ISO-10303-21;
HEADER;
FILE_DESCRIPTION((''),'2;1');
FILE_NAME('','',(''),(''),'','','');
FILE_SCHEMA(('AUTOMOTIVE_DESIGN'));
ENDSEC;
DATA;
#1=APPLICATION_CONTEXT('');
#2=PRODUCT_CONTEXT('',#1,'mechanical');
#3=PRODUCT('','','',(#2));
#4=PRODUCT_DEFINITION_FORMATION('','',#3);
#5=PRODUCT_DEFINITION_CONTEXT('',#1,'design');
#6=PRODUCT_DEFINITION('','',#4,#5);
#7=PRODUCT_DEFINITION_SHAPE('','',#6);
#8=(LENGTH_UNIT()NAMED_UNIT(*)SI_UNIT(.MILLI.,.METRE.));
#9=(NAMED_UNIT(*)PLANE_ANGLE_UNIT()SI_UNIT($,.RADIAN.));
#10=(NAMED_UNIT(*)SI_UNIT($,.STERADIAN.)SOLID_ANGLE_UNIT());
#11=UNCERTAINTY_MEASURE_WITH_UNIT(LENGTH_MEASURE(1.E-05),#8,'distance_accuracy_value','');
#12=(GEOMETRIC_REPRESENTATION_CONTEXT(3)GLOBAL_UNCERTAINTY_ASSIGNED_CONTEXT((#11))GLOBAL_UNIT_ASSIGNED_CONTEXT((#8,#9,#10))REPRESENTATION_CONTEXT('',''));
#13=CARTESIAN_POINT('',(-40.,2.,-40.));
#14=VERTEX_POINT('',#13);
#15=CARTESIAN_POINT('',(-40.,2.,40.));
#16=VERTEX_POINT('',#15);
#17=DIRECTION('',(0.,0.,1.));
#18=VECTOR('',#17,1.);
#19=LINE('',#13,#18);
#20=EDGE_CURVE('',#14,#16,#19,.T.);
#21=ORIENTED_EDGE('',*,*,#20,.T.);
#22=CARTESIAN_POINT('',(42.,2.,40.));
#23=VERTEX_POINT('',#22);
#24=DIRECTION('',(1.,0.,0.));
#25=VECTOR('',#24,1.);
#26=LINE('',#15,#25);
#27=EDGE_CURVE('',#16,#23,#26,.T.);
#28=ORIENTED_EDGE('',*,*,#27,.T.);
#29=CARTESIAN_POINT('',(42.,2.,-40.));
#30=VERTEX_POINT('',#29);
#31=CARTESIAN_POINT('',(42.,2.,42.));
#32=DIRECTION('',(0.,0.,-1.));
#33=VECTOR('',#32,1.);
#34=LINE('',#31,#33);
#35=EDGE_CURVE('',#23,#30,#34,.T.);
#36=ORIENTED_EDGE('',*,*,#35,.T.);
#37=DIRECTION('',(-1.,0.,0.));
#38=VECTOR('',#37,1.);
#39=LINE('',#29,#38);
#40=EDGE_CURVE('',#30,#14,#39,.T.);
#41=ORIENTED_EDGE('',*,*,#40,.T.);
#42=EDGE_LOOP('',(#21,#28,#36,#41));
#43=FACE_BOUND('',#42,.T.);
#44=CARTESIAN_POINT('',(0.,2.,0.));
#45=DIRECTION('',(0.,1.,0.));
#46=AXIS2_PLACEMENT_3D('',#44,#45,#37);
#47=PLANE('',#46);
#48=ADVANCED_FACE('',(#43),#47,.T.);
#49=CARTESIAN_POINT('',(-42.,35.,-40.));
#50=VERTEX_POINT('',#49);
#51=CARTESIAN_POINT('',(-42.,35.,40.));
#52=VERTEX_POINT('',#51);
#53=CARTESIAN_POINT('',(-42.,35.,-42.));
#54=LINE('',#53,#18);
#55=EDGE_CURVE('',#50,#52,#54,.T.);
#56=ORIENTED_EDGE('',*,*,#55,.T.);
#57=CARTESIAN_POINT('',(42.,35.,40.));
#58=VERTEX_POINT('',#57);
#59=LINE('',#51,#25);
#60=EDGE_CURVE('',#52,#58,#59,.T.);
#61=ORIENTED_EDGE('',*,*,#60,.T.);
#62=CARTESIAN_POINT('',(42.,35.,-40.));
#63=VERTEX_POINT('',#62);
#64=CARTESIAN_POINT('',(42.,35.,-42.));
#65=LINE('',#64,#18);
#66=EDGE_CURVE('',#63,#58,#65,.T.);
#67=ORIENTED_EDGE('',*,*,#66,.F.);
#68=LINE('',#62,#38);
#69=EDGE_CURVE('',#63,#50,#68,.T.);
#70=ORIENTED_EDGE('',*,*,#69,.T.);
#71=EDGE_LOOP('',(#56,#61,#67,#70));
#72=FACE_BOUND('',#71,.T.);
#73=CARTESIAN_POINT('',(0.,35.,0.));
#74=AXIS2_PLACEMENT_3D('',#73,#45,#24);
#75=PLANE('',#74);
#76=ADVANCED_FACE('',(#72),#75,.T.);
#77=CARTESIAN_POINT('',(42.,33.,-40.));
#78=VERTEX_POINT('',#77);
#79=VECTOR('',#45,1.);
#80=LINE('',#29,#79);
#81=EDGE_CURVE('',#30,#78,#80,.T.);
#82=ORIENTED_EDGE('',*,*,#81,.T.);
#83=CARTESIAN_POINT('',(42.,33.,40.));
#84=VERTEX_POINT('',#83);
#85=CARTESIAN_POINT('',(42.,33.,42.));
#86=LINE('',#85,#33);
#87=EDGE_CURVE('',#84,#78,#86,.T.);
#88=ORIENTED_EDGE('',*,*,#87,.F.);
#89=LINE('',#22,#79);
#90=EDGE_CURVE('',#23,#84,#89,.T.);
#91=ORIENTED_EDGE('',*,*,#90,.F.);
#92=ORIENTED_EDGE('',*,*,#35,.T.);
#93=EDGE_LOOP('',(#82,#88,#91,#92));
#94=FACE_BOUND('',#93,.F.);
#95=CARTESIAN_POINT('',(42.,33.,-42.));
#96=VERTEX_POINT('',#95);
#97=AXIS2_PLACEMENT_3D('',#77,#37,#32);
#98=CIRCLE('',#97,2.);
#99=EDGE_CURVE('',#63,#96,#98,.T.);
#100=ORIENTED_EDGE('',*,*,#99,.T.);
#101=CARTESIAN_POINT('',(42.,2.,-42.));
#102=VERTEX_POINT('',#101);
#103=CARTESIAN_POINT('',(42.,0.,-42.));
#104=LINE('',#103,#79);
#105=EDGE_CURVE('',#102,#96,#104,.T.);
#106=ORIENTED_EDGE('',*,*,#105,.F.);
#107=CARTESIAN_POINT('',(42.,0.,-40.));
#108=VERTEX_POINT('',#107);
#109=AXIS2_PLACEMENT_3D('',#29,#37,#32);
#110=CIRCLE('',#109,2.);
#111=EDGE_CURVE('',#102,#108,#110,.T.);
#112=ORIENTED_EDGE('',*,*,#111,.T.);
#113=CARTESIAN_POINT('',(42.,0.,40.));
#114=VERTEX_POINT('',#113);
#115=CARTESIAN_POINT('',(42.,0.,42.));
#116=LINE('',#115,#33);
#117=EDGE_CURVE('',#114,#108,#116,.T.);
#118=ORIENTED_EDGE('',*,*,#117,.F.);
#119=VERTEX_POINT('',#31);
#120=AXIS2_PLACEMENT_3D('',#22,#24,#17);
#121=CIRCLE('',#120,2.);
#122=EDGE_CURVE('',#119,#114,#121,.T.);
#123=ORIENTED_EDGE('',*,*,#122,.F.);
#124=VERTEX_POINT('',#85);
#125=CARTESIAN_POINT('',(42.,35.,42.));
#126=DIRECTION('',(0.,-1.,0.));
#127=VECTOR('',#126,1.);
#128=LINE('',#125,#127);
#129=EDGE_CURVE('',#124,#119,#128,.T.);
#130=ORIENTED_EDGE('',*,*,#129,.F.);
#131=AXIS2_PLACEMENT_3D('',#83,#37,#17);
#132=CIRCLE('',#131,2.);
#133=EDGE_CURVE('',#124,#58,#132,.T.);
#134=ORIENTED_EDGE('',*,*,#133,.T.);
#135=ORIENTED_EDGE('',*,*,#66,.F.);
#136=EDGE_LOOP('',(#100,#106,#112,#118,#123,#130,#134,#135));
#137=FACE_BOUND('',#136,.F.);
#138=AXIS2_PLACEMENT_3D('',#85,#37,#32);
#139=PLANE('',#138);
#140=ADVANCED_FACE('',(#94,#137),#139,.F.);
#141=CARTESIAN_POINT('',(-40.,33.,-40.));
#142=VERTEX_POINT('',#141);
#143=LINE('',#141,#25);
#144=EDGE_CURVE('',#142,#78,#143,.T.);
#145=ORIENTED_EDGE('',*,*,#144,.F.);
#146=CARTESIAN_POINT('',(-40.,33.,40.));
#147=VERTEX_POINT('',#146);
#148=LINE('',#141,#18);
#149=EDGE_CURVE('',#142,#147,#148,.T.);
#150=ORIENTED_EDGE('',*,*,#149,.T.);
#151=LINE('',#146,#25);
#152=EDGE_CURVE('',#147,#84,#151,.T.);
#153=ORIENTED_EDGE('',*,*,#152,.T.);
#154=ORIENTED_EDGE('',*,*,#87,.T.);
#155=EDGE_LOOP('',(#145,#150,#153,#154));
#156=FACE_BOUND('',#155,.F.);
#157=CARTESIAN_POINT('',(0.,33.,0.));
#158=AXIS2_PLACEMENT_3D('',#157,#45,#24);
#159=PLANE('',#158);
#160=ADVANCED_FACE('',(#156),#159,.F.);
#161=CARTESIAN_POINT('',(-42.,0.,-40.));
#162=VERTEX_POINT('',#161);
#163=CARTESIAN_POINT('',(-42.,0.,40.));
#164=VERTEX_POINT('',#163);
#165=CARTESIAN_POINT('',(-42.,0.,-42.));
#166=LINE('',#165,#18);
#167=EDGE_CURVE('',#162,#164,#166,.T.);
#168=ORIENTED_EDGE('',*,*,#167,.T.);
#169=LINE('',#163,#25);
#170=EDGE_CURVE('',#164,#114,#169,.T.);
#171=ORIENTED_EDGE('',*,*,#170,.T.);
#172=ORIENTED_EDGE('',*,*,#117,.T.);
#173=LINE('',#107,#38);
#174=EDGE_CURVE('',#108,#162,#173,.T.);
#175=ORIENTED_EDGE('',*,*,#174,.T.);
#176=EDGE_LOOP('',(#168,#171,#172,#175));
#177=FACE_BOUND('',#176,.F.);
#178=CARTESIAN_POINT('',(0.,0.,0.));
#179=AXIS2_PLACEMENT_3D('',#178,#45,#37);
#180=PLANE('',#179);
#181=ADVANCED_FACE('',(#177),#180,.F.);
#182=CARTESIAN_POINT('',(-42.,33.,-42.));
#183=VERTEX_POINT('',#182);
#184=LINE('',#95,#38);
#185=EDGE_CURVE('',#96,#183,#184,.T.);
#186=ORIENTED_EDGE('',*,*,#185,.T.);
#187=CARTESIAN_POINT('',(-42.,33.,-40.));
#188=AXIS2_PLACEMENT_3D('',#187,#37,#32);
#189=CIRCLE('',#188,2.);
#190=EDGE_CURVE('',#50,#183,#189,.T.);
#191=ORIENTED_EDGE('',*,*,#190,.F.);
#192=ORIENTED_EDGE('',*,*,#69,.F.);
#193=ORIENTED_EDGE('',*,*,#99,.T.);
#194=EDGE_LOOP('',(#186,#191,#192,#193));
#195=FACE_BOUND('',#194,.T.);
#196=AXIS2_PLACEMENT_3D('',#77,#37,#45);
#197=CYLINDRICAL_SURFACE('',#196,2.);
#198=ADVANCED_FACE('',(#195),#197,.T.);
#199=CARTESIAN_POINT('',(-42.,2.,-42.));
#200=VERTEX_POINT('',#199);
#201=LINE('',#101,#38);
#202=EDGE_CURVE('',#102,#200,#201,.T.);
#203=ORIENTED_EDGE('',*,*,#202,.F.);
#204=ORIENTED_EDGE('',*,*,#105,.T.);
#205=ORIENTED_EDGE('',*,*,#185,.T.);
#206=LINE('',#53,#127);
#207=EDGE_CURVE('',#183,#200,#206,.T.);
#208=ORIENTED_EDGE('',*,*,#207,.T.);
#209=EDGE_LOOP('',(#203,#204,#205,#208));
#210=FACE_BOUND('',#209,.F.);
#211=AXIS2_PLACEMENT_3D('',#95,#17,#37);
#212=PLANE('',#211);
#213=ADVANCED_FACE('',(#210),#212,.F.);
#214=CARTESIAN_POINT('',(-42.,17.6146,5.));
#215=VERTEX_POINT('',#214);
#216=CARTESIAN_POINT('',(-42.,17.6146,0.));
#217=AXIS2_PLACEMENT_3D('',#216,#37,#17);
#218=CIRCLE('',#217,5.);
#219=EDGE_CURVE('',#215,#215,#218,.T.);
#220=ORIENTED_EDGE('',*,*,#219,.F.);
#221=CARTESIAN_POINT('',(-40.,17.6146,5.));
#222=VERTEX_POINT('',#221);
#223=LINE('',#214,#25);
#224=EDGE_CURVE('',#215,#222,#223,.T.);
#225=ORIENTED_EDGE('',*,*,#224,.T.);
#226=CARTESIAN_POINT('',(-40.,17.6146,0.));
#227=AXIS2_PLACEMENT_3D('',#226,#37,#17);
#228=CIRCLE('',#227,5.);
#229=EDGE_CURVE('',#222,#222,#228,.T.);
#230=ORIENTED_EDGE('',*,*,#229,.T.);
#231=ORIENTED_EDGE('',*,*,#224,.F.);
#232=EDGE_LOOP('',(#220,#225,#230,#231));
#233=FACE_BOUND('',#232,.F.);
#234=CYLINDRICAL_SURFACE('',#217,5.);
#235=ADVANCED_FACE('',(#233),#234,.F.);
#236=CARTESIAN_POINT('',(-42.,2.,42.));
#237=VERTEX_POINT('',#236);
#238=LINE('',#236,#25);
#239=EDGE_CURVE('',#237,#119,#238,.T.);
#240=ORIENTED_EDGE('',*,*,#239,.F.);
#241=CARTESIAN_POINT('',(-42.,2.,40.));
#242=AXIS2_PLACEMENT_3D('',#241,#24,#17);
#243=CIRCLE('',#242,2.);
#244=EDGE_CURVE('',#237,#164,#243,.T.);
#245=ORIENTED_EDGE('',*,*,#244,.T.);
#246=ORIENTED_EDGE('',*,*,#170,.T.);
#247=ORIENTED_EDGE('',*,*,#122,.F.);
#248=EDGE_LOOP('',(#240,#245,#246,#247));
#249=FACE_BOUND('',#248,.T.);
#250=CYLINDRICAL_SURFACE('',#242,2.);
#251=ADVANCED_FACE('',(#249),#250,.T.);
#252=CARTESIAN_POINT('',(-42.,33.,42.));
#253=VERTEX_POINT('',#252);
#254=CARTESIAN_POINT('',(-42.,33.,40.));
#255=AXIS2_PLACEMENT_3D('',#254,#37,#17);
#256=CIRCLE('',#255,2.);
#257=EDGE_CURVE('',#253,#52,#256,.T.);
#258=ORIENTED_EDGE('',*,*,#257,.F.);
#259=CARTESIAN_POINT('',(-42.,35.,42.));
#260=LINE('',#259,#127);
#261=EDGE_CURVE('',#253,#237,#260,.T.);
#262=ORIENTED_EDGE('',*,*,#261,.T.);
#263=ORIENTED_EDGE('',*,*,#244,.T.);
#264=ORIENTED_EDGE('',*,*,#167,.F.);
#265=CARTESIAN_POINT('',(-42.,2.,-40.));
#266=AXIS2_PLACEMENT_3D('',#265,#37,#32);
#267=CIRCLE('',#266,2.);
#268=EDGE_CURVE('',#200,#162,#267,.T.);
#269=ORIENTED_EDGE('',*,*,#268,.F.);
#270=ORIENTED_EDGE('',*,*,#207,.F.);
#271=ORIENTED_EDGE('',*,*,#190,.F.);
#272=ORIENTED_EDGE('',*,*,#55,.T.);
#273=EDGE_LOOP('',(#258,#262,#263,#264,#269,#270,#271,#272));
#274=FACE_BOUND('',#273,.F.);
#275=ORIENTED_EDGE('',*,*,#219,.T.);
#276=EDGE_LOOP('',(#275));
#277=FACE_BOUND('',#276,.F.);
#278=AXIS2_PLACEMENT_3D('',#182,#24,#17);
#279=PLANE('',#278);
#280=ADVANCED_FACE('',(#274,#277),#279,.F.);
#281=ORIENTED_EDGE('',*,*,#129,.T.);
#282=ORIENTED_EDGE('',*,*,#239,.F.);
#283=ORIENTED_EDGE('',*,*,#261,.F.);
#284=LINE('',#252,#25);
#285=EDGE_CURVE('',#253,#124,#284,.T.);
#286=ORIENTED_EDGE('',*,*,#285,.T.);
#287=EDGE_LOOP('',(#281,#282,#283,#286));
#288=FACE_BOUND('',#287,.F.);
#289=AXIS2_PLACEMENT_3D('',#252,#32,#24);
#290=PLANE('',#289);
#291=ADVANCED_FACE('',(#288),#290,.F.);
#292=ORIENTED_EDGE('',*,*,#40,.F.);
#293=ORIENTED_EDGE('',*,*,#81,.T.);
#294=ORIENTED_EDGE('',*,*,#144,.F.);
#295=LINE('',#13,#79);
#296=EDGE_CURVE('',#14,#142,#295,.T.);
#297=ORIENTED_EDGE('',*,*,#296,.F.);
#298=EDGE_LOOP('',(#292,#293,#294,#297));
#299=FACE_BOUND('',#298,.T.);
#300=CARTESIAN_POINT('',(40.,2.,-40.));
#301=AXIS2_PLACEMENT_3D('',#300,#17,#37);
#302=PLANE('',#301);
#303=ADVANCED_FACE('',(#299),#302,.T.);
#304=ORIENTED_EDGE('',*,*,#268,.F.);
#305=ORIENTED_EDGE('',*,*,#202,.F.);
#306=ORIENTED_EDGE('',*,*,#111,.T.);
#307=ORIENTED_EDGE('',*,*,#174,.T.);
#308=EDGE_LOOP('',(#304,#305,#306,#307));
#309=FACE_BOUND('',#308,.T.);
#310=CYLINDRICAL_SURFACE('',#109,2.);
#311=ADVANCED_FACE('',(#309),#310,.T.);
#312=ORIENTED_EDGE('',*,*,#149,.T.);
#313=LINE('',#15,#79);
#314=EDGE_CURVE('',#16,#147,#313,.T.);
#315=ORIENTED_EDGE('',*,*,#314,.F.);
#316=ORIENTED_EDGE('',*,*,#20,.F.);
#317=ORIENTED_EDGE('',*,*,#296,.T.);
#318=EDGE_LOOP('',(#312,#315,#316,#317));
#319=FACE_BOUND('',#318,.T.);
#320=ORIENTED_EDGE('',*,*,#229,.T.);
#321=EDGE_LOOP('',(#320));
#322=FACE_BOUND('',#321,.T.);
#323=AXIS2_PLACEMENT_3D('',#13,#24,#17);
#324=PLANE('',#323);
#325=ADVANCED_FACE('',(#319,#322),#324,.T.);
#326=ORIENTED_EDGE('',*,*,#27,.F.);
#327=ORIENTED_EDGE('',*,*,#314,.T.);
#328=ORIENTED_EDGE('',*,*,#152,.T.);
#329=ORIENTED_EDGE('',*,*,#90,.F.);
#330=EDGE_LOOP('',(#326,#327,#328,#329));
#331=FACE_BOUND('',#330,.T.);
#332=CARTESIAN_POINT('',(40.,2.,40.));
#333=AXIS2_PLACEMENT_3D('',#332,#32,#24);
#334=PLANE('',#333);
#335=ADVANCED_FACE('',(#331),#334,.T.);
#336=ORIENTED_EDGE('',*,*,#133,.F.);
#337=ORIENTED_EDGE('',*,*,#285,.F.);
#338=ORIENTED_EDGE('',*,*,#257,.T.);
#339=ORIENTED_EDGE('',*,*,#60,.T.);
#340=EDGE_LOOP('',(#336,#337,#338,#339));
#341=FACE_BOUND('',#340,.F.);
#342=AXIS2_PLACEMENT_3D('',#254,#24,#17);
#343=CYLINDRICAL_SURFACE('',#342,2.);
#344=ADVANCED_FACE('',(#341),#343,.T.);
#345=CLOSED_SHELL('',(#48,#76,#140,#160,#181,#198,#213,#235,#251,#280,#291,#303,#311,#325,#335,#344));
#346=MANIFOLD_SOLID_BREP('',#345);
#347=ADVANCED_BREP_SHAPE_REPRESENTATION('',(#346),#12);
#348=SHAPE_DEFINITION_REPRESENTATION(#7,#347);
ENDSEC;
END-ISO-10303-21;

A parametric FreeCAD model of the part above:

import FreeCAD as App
import Part
import Sketcher

V = App.Vector


def edges_at(feature, points):
    """Names of the edges that pass closest to the given points."""
    edges = feature.Shape.Edges
    near = lambda p: min(range(len(edges)), key=lambda i: edges[i].distToShape(Part.Vertex(*p))[0])
    return sorted({f"Edge{near(p) + 1}" for p in points})


def add_polygon(sketch, points):
    """Adds a closed chain of lines whose ends are joined by coincident constraints."""
    first, n = sketch.GeometryCount, len(points)
    for a, b in zip(points, points[1:] + points[:1]):
        sketch.addGeometry(Part.LineSegment(App.Vector(*a, 0), App.Vector(*b, 0)), False)
    for i in range(n):
        sketch.addConstraint(Sketcher.Constraint("Coincident", first + i, 2, first + (i + 1) % n, 1))

doc = App.newDocument("Part")
body = doc.addObject("PartDesign::Body", "Body")

# Sketch on XZ plane
sketch1 = doc.addObject("Sketcher::SketchObject", "Sketch")
body.addObject(sketch1)
sketch1.AttachmentSupport = (doc.XZ_Plane, [""])
sketch1.MapMode = "FlatFace"
add_polygon(sketch1, [(42, 42), (42, -42), (-42, -42), (-42, 42)])  # lines 0-3
sketch1.addConstraint([
    Sketcher.Constraint("Vertical", 0),
    Sketcher.Constraint("Horizontal", 1),
    Sketcher.Constraint("Vertical", 2),
    Sketcher.Constraint("Horizontal", 3),
    Sketcher.Constraint("Symmetric", 0, 2, 2, 2, -1, 1),
    Sketcher.Constraint("Equal", 3, 0),
    Sketcher.Constraint("DistanceX", 1, 2, 1, 1, 84.0),
])
pad1 = doc.addObject("PartDesign::Pad", "Pad")
body.addObject(pad1)
pad1.Profile = sketch1
pad1.Length = 2
pad1.Reversed = True

# Sketch on XZ plane
sketch2 = doc.addObject("Sketcher::SketchObject", "Sketch001")
body.addObject(sketch2)
sketch2.AttachmentSupport = (doc.XZ_Plane, [""])
sketch2.MapMode = "FlatFace"
sketch2.AttachmentOffset = App.Placement(V(0, 0, -2), App.Rotation())
add_polygon(sketch2, [(-40, -40), (42, -40), (42, -42), (-42, -42), (-42, 42), (42, 42), (42, 40), (-40, 40)])  # lines 0-7
sketch2.addConstraint([
    Sketcher.Constraint("Horizontal", 0),
    Sketcher.Constraint("Vertical", 1),
    Sketcher.Constraint("Horizontal", 2),
    Sketcher.Constraint("Vertical", 3),
    Sketcher.Constraint("Horizontal", 4),
    Sketcher.Constraint("Vertical", 5),
    Sketcher.Constraint("Horizontal", 6),
    Sketcher.Constraint("Vertical", 7),
    Sketcher.Constraint("Symmetric", 1, 2, 3, 2, -1, 1),
    Sketcher.Constraint("Symmetric", 0, 2, 5, 2, -1),
    Sketcher.Constraint("Equal", 4, 3),
    Sketcher.Constraint("DistanceY", 1, 2, 1, 1, 2.0),
    Sketcher.Constraint("DistanceX", 3, 2, 6, 2, 2.0),
    Sketcher.Constraint("DistanceX", 0, 1, 0, 2, 82.0),
])
pad2 = doc.addObject("PartDesign::Pad", "Pad001")
body.addObject(pad2)
pad2.Profile = sketch2
pad2.Length = 31
pad2.Reversed = True

# Sketch on XZ plane
sketch3 = doc.addObject("Sketcher::SketchObject", "Sketch002")
body.addObject(sketch3)
sketch3.AttachmentSupport = (doc.XZ_Plane, [""])
sketch3.MapMode = "FlatFace"
sketch3.AttachmentOffset = App.Placement(V(0, 0, -33), App.Rotation())
add_polygon(sketch3, [(42, 42), (42, -42), (-42, -42), (-42, 42)])  # lines 0-3
sketch3.addConstraint([
    Sketcher.Constraint("Vertical", 0),
    Sketcher.Constraint("Horizontal", 1),
    Sketcher.Constraint("Vertical", 2),
    Sketcher.Constraint("Horizontal", 3),
    Sketcher.Constraint("Symmetric", 0, 2, 2, 2, -1, 1),
    Sketcher.Constraint("Equal", 3, 0),
    Sketcher.Constraint("DistanceX", 1, 2, 1, 1, 84.0),
])
pad3 = doc.addObject("PartDesign::Pad", "Pad002")
body.addObject(pad3)
pad3.Profile = sketch3
pad3.Length = 2
pad3.Reversed = True
doc.recompute()

fillet = doc.addObject("PartDesign::Fillet", "Fillet")
body.addObject(fillet)
fillet.Base = (pad3, edges_at(pad3, [
    (0, 35, 42),
    (0, 35, -42),
    (0, 0, 42),
    (0, 0, -42),
]))
fillet.Radius = 2

# Sketch on YZ plane
sketch4 = doc.addObject("Sketcher::SketchObject", "Sketch003")
body.addObject(sketch4)
sketch4.AttachmentSupport = (doc.YZ_Plane, [""])
sketch4.MapMode = "FlatFace"
sketch4.AttachmentOffset = App.Placement(V(0, 0, -42), App.Rotation())
sketch4.addGeometry(Part.Circle(V(18, 0, 0), V(0, 0, 1), 5), False)
sketch4.addConstraint([
    Sketcher.Constraint("PointOnObject", 0, 3, -1),
    Sketcher.Constraint("Diameter", 0, 10.0),
    Sketcher.Constraint("DistanceX", -1, 1, 0, 3, 17.6146),
])
pocket1 = doc.addObject("PartDesign::Pocket", "Pocket")
body.addObject(pocket1)
pocket1.Profile = sketch4
pocket1.Length = 31
pocket1.Reversed = True

doc.recompute()
